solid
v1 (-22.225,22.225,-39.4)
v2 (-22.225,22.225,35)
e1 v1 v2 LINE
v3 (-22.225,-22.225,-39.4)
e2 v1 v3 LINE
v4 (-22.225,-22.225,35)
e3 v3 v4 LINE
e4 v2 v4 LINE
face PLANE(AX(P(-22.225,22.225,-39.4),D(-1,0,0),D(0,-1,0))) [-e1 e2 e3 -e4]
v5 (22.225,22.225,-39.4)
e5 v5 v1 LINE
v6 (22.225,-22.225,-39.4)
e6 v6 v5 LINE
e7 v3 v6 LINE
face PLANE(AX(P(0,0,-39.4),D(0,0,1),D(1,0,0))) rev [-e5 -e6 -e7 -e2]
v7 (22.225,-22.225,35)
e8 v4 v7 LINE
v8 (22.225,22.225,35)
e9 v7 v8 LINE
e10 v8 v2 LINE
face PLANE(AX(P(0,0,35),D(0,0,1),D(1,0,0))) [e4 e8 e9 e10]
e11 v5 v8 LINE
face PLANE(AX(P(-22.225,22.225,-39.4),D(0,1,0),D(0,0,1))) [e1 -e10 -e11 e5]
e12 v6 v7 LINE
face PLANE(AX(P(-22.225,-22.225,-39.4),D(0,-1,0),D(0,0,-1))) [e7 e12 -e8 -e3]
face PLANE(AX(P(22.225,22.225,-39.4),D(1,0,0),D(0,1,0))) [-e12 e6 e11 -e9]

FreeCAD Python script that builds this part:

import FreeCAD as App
import Part
import Sketcher
Q = App.Units.Quantity


def add_polygon(sketch, points):
    """Adds a closed chain of lines whose ends are joined by coincident constraints."""
    first, n = sketch.GeometryCount, len(points)
    for a, b in zip(points, points[1:] + points[:1]):
        sketch.addGeometry(Part.LineSegment(App.Vector(*a, 0), App.Vector(*b, 0)), False)
    for i in range(n):
        sketch.addConstraint(Sketcher.Constraint("Coincident", first + i, 2, first + (i + 1) % n, 1))

doc = App.newDocument("Part")
body = doc.addObject("PartDesign::Body", "Body")

sketch1 = body.newObject("Sketcher::SketchObject", "Sketch")
sketch1.AttachmentSupport = (doc.getObject("XY_Plane"), [""])
sketch1.MapMode = "FlatFace"
add_polygon(sketch1, [(-22, 22), (-22, -22), (22, -22), (22, 22)])
sketch1.addConstraint([
    Sketcher.Constraint("Vertical", 0),
    Sketcher.Constraint("Horizontal", 1),
    Sketcher.Constraint("Vertical", 2),
    Sketcher.Constraint("Horizontal", 3),
    Sketcher.Constraint("Symmetric", 0, 2, 2, 2, -1, 1),
    Sketcher.Constraint("Equal", 3, 0),
    Sketcher.Constraint("DistanceX", 1, 1, 1, 2, Q("44.45 mm")),
])
pad1 = body.newObject("PartDesign::Pad", "Pad")
pad1.Profile = sketch1
pad1.Type = "TwoLengths"
pad1.Length = 35
pad1.Length2 = 39.4

doc.recompute()
